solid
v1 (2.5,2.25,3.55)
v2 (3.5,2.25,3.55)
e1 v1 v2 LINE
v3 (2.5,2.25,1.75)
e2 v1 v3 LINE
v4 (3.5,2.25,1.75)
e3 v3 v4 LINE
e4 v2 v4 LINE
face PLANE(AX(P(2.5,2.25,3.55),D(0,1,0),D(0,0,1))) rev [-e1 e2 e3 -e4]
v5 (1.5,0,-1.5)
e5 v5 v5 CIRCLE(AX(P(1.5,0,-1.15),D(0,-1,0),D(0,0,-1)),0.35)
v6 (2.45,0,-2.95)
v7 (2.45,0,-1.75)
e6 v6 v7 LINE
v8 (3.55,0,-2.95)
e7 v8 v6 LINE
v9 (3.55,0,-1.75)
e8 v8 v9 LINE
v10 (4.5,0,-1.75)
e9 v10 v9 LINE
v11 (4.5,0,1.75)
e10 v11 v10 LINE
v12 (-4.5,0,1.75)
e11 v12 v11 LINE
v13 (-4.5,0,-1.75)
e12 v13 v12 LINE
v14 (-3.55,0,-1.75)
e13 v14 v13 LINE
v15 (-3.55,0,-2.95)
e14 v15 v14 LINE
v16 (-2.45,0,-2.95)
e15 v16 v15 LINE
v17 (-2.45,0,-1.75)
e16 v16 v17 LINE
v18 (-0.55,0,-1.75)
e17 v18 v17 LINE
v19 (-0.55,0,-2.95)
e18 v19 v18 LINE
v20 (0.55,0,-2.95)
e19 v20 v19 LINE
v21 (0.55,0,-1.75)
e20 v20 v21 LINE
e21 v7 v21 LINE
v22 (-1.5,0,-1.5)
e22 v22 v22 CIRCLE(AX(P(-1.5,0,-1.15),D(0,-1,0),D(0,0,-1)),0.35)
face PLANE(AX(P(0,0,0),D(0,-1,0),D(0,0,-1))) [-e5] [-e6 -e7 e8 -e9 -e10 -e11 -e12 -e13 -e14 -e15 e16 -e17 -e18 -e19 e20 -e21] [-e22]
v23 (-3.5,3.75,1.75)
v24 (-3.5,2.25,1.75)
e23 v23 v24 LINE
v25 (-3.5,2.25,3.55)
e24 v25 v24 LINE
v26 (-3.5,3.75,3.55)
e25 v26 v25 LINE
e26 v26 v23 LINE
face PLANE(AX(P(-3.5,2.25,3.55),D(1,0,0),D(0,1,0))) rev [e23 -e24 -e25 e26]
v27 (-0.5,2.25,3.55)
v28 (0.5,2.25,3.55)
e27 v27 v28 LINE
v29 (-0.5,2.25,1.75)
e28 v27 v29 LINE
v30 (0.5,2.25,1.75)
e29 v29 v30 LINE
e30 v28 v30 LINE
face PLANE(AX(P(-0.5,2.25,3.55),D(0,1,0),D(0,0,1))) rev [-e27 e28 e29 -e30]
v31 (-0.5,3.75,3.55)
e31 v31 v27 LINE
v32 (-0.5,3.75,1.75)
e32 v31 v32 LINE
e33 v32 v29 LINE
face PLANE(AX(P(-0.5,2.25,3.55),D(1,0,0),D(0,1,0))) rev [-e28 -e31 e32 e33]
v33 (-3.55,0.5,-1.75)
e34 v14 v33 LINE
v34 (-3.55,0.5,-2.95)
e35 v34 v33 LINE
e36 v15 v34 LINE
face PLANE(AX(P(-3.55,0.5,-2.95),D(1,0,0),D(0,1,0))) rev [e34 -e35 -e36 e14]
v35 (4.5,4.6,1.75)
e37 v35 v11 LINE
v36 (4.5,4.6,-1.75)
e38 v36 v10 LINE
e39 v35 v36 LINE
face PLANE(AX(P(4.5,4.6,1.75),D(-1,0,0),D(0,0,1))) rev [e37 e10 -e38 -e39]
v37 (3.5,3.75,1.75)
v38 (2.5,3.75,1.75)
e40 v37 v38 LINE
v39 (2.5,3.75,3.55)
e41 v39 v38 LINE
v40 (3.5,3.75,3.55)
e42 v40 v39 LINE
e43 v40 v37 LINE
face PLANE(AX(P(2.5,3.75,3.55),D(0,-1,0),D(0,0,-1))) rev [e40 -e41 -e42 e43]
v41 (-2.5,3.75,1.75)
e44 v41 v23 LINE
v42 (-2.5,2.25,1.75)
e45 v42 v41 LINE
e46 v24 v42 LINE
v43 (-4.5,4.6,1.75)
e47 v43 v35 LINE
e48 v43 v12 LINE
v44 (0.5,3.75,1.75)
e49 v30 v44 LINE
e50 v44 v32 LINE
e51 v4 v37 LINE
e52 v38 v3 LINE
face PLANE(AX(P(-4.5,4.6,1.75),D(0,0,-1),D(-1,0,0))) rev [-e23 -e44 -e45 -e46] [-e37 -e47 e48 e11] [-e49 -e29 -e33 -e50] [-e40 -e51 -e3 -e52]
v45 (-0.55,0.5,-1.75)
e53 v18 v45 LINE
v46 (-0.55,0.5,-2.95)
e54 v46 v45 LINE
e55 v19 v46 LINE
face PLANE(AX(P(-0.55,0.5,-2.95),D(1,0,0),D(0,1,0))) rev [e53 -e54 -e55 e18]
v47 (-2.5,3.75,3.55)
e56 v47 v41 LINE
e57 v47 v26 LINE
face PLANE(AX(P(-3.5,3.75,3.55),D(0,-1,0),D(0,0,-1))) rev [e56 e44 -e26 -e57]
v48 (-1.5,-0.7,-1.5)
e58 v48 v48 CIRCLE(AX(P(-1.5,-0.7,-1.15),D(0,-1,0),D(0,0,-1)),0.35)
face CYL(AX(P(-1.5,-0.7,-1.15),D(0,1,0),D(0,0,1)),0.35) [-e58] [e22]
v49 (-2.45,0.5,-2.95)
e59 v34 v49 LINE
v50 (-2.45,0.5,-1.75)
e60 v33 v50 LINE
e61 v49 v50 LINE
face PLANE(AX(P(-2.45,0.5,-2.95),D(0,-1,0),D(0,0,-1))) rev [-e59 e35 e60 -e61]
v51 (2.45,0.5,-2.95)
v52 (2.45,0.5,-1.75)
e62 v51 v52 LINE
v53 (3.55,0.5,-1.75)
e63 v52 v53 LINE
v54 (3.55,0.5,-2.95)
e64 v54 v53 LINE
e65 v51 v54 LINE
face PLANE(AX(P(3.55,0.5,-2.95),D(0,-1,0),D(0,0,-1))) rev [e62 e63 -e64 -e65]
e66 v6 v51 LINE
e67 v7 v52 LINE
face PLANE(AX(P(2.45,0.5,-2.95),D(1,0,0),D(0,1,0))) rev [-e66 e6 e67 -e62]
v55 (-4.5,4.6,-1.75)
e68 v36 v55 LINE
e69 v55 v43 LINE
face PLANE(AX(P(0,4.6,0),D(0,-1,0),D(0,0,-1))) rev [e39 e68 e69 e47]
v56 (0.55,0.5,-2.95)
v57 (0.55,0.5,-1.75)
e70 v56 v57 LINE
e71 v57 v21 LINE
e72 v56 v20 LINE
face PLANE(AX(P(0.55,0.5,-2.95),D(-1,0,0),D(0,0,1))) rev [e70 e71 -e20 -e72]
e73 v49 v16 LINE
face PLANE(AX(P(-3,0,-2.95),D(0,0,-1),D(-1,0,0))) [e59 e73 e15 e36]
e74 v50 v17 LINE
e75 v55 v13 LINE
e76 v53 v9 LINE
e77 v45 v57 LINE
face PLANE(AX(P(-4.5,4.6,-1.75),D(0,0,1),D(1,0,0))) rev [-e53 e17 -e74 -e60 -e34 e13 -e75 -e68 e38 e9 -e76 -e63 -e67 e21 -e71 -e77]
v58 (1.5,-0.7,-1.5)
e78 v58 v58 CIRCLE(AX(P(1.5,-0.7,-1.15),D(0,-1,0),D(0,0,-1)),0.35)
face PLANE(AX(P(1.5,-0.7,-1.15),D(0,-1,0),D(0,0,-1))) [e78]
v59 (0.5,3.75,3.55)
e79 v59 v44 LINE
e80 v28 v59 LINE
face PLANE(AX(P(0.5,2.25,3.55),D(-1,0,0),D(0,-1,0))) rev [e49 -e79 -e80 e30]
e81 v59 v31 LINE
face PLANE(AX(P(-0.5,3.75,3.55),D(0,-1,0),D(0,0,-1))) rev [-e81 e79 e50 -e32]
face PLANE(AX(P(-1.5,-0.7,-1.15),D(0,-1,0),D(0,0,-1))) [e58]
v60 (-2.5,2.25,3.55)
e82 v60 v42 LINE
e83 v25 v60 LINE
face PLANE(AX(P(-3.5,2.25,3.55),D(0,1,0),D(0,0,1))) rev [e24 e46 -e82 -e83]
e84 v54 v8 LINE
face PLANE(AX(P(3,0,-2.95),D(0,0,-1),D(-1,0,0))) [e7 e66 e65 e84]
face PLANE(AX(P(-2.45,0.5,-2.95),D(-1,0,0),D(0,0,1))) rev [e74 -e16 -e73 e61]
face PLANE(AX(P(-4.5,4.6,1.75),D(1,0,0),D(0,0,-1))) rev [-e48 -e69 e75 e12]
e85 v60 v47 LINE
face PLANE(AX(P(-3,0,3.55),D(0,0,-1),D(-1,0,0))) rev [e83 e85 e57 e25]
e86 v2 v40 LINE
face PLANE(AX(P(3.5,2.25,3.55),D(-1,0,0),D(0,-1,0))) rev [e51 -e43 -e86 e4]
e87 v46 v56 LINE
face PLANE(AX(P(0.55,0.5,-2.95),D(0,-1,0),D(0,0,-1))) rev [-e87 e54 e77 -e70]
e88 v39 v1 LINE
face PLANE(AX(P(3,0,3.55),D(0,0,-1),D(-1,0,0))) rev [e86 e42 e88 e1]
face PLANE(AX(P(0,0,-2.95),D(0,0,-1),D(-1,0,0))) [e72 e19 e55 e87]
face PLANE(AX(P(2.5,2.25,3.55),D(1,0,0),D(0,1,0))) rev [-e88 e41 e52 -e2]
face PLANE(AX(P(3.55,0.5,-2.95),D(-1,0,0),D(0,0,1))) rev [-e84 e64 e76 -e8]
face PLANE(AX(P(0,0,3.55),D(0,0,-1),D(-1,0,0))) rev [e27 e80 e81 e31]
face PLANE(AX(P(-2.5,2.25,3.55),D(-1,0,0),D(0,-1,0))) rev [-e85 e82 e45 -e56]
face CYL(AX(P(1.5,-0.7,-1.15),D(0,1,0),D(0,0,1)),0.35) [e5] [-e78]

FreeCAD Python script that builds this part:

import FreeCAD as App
import Part
import Sketcher
Q = App.Units.Quantity


def add_polygon(sketch, points):
    """Adds a closed chain of lines whose ends are joined by coincident constraints."""
    first, n = sketch.GeometryCount, len(points)
    for a, b in zip(points, points[1:] + points[:1]):
        sketch.addGeometry(Part.LineSegment(App.Vector(*a, 0), App.Vector(*b, 0)), False)
    for i in range(n):
        sketch.addConstraint(Sketcher.Constraint("Coincident", first + i, 2, first + (i + 1) % n, 1))

doc = App.newDocument("Part")
body = doc.addObject("PartDesign::Body", "Body")

# Sketch on XZ plane
sketch1 = body.newObject("Sketcher::SketchObject", "Sketch")
sketch1.AttachmentSupport = (doc.getObject("XZ_Plane"), [""])
sketch1.MapMode = "FlatFace"
add_polygon(sketch1, [(-4.5, -1.8), (-4.5, 1.8), (4.5, 1.8), (4.5, -1.8)])  # lines 0-3
sketch1.addConstraint(Sketcher.Constraint("Vertical", 0))
sketch1.addConstraint(Sketcher.Constraint("Horizontal", 1))
sketch1.addConstraint(Sketcher.Constraint("Vertical", 2))
sketch1.addConstraint(Sketcher.Constraint("Horizontal", 3))
sketch1.addConstraint(Sketcher.Constraint("Symmetric", 0, 2, 2, 2, -1, 1))
sketch1.addConstraint(Sketcher.Constraint("DistanceX", 1, 1, 1, 2, Q("9 mm")))
sketch1.addConstraint(Sketcher.Constraint("DistanceY", 0, 1, 0, 2, Q("3.5 mm")))
pad1 = body.newObject("PartDesign::Pad", "Pad")
pad1.Profile = sketch1
pad1.Length = 4.6
pad1.Reversed = True

# Sketch on XY plane
sketch2 = body.newObject("Sketcher::SketchObject", "Sketch001")
sketch2.AttachmentSupport = (doc.getObject("XY_Plane"), [""])
sketch2.MapMode = "FlatFace"
sketch2.AttachmentOffset = App.Placement(App.Vector(0, 0, 1.75), App.Rotation())
add_polygon(sketch2, [(-0.5, 3.8), (-0.5, 2.2), (0.5, 2.2), (0.5, 3.8)])  # lines 0-3
sketch2.addConstraint(Sketcher.Constraint("Vertical", 0))
sketch2.addConstraint(Sketcher.Constraint("Horizontal", 1))
sketch2.addConstraint(Sketcher.Constraint("Vertical", 2))
sketch2.addConstraint(Sketcher.Constraint("Horizontal", 3))
sketch2.addConstraint(Sketcher.Constraint("DistanceX", 1, 1, 1, 2, Q("1 mm")))
sketch2.addConstraint(Sketcher.Constraint("DistanceY", 0, 2, 0, 1, Q("1.5 mm")))
sketch2.addConstraint(Sketcher.Constraint("DistanceX", 0, 2, -1, 1, Q("0.5 mm")))
sketch2.addConstraint(Sketcher.Constraint("DistanceY", -1, 1, 0, 2, Q("2.25 mm")))
pad2 = body.newObject("PartDesign::Pad", "Pad001")
pad2.Profile = sketch2
pad2.Length = 1.8
doc.recompute()

linearpattern = body.newObject("PartDesign::LinearPattern", "LinearPattern")
linearpattern.Originals = [pad2]
linearpattern.Direction = (doc.getObject("X_Axis"), [""])
linearpattern.Mode = "offset"
linearpattern.Offset = 3
linearpattern.Occurrences = 2
body.Tip = linearpattern
doc.recompute()

linearpattern2 = body.newObject("PartDesign::LinearPattern", "LinearPattern001")
linearpattern2.Originals = [pad2]
linearpattern2.Direction = (doc.getObject("X_Axis"), [""])
linearpattern2.Mode = "offset"
linearpattern2.Offset = 3
linearpattern2.Occurrences = 2
linearpattern2.Reversed = True
body.Tip = linearpattern2

# Sketch on XZ plane
sketch3 = body.newObject("Sketcher::SketchObject", "Sketch002")
sketch3.AttachmentSupport = (doc.getObject("XZ_Plane"), [""])
sketch3.MapMode = "FlatFace"
sketch3.addGeometry(Part.Circle(App.Vector(-1.5, -1.15, 0), App.Vector(0, 0, 1), 0.35), False)
sketch3.addGeometry(Part.Circle(App.Vector(1.5, -1.15, 0), App.Vector(0, 0, 1), 0.35), False)
sketch3.addConstraint(Sketcher.Constraint("Equal", 0, 1))
sketch3.addConstraint(Sketcher.Constraint("Symmetric", 0, 3, 1, 3, -2))
sketch3.addConstraint(Sketcher.Constraint("Diameter", 0, Q("0.7 mm")))
sketch3.addConstraint(Sketcher.Constraint("DistanceX", 0, 3, 1, 3, Q("3 mm")))
sketch3.addConstraint(Sketcher.Constraint("DistanceY", 0, 3, -1, 1, Q("1.15 mm")))
pad3 = body.newObject("PartDesign::Pad", "Pad002")
pad3.Profile = sketch3
pad3.Length = 0.7

# Sketch on XY plane
sketch4 = body.newObject("Sketcher::SketchObject", "Sketch003")
sketch4.AttachmentSupport = (doc.getObject("XY_Plane"), [""])
sketch4.MapMode = "FlatFace"
sketch4.AttachmentOffset = App.Placement(App.Vector(0, 0, -1.75), App.Rotation())
add_polygon(sketch4, [(0.6, 0.5), (0.6, 0), (-0.6, 0), (-0.6, 0.5)])  # lines 0-3
sketch4.addConstraint(Sketcher.Constraint("Vertical", 0))
sketch4.addConstraint(Sketcher.Constraint("Horizontal", 1))
sketch4.addConstraint(Sketcher.Constraint("Vertical", 2))
sketch4.addConstraint(Sketcher.Constraint("Horizontal", 3))
sketch4.addConstraint(Sketcher.Constraint("Symmetric", 0, 2, 1, 2, -1, 1))
sketch4.addConstraint(Sketcher.Constraint("DistanceX", 1, 2, 1, 1, Q("1.1 mm")))
sketch4.addConstraint(Sketcher.Constraint("DistanceY", 0, 2, 0, 1, Q("0.5 mm")))
pad4 = body.newObject("PartDesign::Pad", "Pad003")
pad4.Profile = sketch4
pad4.Length = 1.2
pad4.Reversed = True
doc.recompute()

linearpattern3 = body.newObject("PartDesign::LinearPattern", "LinearPattern002")
linearpattern3.Originals = [pad4]
linearpattern3.Direction = (doc.getObject("X_Axis"), [""])
linearpattern3.Mode = "offset"
linearpattern3.Offset = 3
linearpattern3.Occurrences = 2
body.Tip = linearpattern3
doc.recompute()

linearpattern4 = body.newObject("PartDesign::LinearPattern", "LinearPattern003")
linearpattern4.Originals = [pad4]
linearpattern4.Direction = (doc.getObject("X_Axis"), [""])
linearpattern4.Mode = "offset"
linearpattern4.Offset = 3
linearpattern4.Occurrences = 2
linearpattern4.Reversed = True
body.Tip = linearpattern4

doc.recompute()
